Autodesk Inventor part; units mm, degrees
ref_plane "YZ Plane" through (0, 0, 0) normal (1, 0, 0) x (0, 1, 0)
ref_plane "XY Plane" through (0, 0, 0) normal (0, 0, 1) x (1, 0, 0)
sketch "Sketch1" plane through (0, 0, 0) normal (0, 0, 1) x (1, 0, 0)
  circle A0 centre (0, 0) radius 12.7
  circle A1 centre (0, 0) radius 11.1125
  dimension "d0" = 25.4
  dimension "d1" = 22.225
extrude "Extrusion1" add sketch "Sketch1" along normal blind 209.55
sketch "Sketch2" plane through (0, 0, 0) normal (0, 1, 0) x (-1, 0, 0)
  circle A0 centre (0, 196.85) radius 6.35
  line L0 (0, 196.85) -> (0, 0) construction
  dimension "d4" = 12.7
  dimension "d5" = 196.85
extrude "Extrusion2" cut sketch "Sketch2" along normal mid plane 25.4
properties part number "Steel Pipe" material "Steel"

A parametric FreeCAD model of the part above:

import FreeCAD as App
import Part
import Sketcher

V = App.Vector
Q = App.Units.Quantity

doc = App.newDocument("Part")
body = doc.addObject("PartDesign::Body", "Body")

sketch1 = body.newObject("Sketcher::SketchObject", "Sketch")
sketch1.AttachmentSupport = (doc.getObject("XY_Plane"), [""])
sketch1.MapMode = "FlatFace"
sketch1.addGeometry([
    Part.Circle(V(0, 0, 0), V(0, 0, 1), 13),
    Part.Circle(V(0, 0, 0), V(0, 0, 1), 11),
], False)
sketch1.addConstraint([
    Sketcher.Constraint("Coincident", 0, 3, -1, 1),
    Sketcher.Constraint("Coincident", 1, 3, -1, 1),
    Sketcher.Constraint("Diameter", 0, Q("1 in")),
    Sketcher.Constraint("Diameter", 1, Q("0.875 in")),
])
pad1 = body.newObject("PartDesign::Pad", "Pad")
pad1.Profile = sketch1
pad1.Length = Q("8.25 in")

sketch2 = body.newObject("Sketcher::SketchObject", "Sketch001")
sketch2.AttachmentSupport = (doc.getObject("XZ_Plane"), [""])
sketch2.MapMode = "FlatFace"
sketch2.addGeometry(Part.Circle(V(0, 197, 0), V(0, 0, 1), 6), False)
sketch2.addConstraint([
    Sketcher.Constraint("PointOnObject", 0, 3, -2),
    Sketcher.Constraint("Diameter", 0, Q("0.5 in")),
    Sketcher.Constraint("DistanceY", -1, 1, 0, 3, Q("7.75 in")),
])
pocket1 = body.newObject("PartDesign::Pocket", "Pocket")
pocket1.Profile = sketch2
pocket1.Length = Q("1 in")
pocket1.Midplane = True

doc.recompute()
